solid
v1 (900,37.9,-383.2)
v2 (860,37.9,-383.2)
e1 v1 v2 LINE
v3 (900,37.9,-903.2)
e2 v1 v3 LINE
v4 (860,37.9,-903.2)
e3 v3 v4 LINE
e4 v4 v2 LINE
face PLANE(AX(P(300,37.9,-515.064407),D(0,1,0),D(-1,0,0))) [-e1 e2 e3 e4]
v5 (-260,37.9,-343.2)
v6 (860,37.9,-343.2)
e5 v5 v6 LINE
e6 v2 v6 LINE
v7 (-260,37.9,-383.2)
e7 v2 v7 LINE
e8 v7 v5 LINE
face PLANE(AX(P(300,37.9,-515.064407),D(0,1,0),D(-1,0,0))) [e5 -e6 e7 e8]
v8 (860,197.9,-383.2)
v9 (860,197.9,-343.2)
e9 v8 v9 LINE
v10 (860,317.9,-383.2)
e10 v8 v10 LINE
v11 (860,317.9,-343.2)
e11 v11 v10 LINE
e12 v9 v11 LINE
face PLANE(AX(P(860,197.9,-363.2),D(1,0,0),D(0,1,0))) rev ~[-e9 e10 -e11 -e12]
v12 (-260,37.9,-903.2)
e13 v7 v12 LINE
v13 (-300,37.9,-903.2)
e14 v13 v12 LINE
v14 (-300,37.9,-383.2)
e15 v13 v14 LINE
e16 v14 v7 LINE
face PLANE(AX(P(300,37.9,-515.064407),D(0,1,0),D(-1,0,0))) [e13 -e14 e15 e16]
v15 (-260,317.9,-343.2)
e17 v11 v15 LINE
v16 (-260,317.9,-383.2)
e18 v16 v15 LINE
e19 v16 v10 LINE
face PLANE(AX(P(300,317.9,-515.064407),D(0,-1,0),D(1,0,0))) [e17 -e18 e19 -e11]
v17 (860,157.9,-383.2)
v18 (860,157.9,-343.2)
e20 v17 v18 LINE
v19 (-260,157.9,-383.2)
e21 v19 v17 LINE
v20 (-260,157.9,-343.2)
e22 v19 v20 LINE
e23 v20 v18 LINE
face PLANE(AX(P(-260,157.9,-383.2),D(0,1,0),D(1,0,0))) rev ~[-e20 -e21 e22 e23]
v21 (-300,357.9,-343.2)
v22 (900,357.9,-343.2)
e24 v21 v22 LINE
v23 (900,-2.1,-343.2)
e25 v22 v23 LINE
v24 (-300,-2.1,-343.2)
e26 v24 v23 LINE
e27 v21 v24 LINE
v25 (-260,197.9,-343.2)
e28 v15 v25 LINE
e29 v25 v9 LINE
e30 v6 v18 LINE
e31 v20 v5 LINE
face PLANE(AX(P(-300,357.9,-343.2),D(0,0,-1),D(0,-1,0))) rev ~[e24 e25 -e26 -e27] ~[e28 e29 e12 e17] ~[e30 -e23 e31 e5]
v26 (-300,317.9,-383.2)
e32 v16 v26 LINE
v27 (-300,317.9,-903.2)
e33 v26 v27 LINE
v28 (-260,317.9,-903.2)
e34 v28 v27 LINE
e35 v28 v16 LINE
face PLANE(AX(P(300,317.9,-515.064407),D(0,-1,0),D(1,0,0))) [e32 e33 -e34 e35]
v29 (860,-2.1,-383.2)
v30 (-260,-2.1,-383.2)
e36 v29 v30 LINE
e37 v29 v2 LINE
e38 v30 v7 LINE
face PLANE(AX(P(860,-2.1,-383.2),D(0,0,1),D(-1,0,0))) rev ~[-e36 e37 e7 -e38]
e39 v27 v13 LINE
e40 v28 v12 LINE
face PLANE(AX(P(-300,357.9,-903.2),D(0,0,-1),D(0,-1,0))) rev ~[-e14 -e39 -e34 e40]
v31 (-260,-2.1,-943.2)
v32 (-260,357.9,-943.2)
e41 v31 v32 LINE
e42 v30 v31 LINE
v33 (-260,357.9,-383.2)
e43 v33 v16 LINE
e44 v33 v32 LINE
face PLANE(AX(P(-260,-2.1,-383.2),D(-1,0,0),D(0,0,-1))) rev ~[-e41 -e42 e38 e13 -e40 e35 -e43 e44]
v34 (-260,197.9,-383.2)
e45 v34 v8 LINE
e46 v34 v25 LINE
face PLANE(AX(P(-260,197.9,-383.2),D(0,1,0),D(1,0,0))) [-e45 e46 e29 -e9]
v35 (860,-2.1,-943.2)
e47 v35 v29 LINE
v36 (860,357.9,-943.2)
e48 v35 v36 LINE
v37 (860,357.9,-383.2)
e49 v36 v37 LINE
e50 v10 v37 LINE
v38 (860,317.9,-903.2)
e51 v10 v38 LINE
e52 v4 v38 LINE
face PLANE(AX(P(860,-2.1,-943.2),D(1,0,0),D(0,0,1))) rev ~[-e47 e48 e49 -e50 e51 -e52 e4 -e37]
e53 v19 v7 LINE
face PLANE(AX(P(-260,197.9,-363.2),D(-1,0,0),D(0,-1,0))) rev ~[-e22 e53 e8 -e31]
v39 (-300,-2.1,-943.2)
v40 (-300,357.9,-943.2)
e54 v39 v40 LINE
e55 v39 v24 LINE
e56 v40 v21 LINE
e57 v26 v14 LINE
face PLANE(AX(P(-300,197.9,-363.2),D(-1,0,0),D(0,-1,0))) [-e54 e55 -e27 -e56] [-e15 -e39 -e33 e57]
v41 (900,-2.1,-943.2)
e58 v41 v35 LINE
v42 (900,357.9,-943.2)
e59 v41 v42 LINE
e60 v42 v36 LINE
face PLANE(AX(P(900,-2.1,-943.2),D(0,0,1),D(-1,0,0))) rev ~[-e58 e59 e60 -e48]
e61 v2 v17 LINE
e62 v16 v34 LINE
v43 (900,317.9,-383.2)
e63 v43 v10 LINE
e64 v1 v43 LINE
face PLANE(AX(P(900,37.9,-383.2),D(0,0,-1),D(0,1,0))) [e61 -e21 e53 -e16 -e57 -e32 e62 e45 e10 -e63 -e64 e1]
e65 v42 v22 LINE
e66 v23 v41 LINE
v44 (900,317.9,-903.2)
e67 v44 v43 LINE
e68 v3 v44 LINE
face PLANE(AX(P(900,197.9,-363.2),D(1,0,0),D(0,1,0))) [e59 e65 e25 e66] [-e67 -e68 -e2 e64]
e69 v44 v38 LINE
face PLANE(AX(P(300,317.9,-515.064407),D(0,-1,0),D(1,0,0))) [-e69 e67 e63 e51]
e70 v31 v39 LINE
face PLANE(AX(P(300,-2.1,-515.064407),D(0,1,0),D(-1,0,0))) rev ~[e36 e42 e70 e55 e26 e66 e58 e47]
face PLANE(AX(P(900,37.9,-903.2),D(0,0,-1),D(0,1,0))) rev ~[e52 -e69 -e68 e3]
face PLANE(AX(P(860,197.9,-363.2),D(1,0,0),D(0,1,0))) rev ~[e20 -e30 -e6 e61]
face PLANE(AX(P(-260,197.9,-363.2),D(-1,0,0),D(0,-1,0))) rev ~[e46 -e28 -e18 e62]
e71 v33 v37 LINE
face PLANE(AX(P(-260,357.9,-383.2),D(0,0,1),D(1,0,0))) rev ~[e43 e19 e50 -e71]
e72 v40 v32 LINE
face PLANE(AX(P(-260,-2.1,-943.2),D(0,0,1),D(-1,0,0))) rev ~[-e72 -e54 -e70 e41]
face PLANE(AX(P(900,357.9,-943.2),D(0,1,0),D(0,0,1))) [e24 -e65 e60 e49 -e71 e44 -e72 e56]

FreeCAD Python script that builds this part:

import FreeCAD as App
import Part
import Sketcher
from FreeCAD import Vector

doc = App.newDocument("Part")
params = doc.addObject("Spreadsheet::Sheet", "Params")
for row, (alias, value) in enumerate([
    ("sketch1_width", "1200 mm"),
    ("sketch1_width2", "40 mm"),
    ("sketch1_height", "600 mm"),
    ("sketch1_height2", "560 mm"),
    ("pad1_length", "40 mm"),
    ("sketch2_width", "320 mm"),
    ("sketch2_height", "40 mm"),
    ("pad2_length", "40 mm"),
    ("sketch3_width", "320 mm"),
    ("sketch3_height", "40 mm"),
    ("pad3_length", "40 mm"),
    ("sketch4_width", "40 mm"),
    ("sketch4_width2", "1120 mm"),
    ("sketch4_height", "600 mm"),
    ("sketch4_height2", "560 mm"),
    ("pad4_length", "40 mm"),
    ("sketch5_width", "1120 mm"),
    ("sketch5_height", "40 mm"),
    ("pad5_length", "40 mm"),
], start=1):
    params.set(f"A{row}", alias)
    params.set(f"B{row}", "=" + value)
    params.setAlias(f"B{row}", alias)

body = doc.addObject("PartDesign::Body", "Body")

sketch1 = body.newObject("Sketcher::SketchObject", "Sketch")
sketch1.AttachmentSupport = (doc.getObject("XZ_Plane"), [""])
sketch1.MapMode = "FlatFace"
sketch1.AttachmentOffset = App.Placement(Vector(0, 0, 2.1), App.Rotation())
sketch1.addGeometry(Part.LineSegment(Vector(900, -343.2, 0), Vector(-300, -343.2, 0)), False)
sketch1.addGeometry(Part.LineSegment(Vector(-300, -343.2, 0), Vector(-300, -943.2, 0)), False)
sketch1.addGeometry(Part.LineSegment(Vector(-300, -943.2, 0), Vector(-260, -943.2, 0)), False)
sketch1.addGeometry(Part.LineSegment(Vector(-260, -943.2, 0), Vector(-260, -383.2, 0)), False)
sketch1.addGeometry(Part.LineSegment(Vector(-260, -383.2, 0), Vector(860, -383.2, 0)), False)
sketch1.addGeometry(Part.LineSegment(Vector(860, -383.2, 0), Vector(860, -943.2, 0)), False)
sketch1.addGeometry(Part.LineSegment(Vector(860, -943.2, 0), Vector(900, -943.2, 0)), False)
sketch1.addGeometry(Part.LineSegment(Vector(900, -943.2, 0), Vector(900, -343.2, 0)), False)
sketch1.addConstraint(Sketcher.Constraint("Coincident", 0, 2, 1, 1))
sketch1.addConstraint(Sketcher.Constraint("Coincident", 1, 2, 2, 1))
sketch1.addConstraint(Sketcher.Constraint("Coincident", 2, 2, 3, 1))
sketch1.addConstraint(Sketcher.Constraint("Coincident", 3, 2, 4, 1))
sketch1.addConstraint(Sketcher.Constraint("Coincident", 4, 2, 5, 1))
sketch1.addConstraint(Sketcher.Constraint("Coincident", 5, 2, 6, 1))
sketch1.addConstraint(Sketcher.Constraint("Coincident", 6, 2, 7, 1))
sketch1.addConstraint(Sketcher.Constraint("Coincident", 7, 2, 0, 1))
sketch1.addConstraint(Sketcher.Constraint("Horizontal", 0))
sketch1.addConstraint(Sketcher.Constraint("Vertical", 1))
sketch1.addConstraint(Sketcher.Constraint("Horizontal", 2))
sketch1.addConstraint(Sketcher.Constraint("Vertical", 3))
sketch1.addConstraint(Sketcher.Constraint("Horizontal", 4))
sketch1.addConstraint(Sketcher.Constraint("Vertical", 5))
sketch1.addConstraint(Sketcher.Constraint("Horizontal", 6))
sketch1.addConstraint(Sketcher.Constraint("Vertical", 7))
sketch1.addConstraint(Sketcher.Constraint("Horizontal", 2, 2, 5, 2))
sketch1.addConstraint(Sketcher.Constraint("Equal", 2, 6))
sketch1.addConstraint(Sketcher.Constraint("DistanceX", 0, 2, 0, 1, 1200.0))
sketch1.addConstraint(Sketcher.Constraint("DistanceX", 2, 1, 2, 2, 40.0))
sketch1.addConstraint(Sketcher.Constraint("DistanceY", 1, 2, 1, 1, 600.0))
sketch1.addConstraint(Sketcher.Constraint("DistanceY", 3, 1, 3, 2, 560.0))
sketch1.addConstraint(Sketcher.Constraint("DistanceX", 0, 2, -1, 1, 300.0))
sketch1.addConstraint(Sketcher.Constraint("DistanceY", 0, 2, -1, 1, 343.2))
sketch1.setExpression("Constraints[18]", "Params.sketch1_width")
sketch1.setExpression("Constraints[19]", "Params.sketch1_width2")
sketch1.setExpression("Constraints[20]", "Params.sketch1_height")
sketch1.setExpression("Constraints[21]", "Params.sketch1_height2")
pad1 = body.newObject("PartDesign::Pad", "Pad")
pad1.Profile = sketch1
pad1.setExpression("Length", "Params.pad1_length")
pad1.Reversed = True

sketch2 = body.newObject("Sketcher::SketchObject", "Sketch001")
sketch2.AttachmentSupport = (doc.getObject("YZ_Plane"), [""])
sketch2.MapMode = "FlatFace"
sketch2.AttachmentOffset = App.Placement(Vector(0, 0, 900), App.Rotation())
sketch2.addGeometry(Part.LineSegment(Vector(37.9, -343.2, 0), Vector(37.9, -383.2, 0)), False)
sketch2.addGeometry(Part.LineSegment(Vector(37.9, -383.2, 0), Vector(357.9, -383.2, 0)), False)
sketch2.addGeometry(Part.LineSegment(Vector(357.9, -383.2, 0), Vector(357.9, -343.2, 0)), False)
sketch2.addGeometry(Part.LineSegment(Vector(357.9, -343.2, 0), Vector(37.9, -343.2, 0)), False)
sketch2.addGeometry(Part.LineSegment(Vector(37.9, -903.2, 0), Vector(37.9, -943.2, 0)), False)
sketch2.addGeometry(Part.LineSegment(Vector(37.9, -943.2, 0), Vector(357.9, -943.2, 0)), False)
sketch2.addGeometry(Part.LineSegment(Vector(357.9, -943.2, 0), Vector(357.9, -903.2, 0)), False)
sketch2.addGeometry(Part.LineSegment(Vector(357.9, -903.2, 0), Vector(37.9, -903.2, 0)), False)
sketch2.addConstraint(Sketcher.Constraint("Coincident", 0, 2, 1, 1))
sketch2.addConstraint(Sketcher.Constraint("Coincident", 1, 2, 2, 1))
sketch2.addConstraint(Sketcher.Constraint("Coincident", 2, 2, 3, 1))
sketch2.addConstraint(Sketcher.Constraint("Coincident", 3, 2, 0, 1))
sketch2.addConstraint(Sketcher.Constraint("Coincident", 4, 2, 5, 1))
sketch2.addConstraint(Sketcher.Constraint("Coincident", 5, 2, 6, 1))
sketch2.addConstraint(Sketcher.Constraint("Coincident", 6, 2, 7, 1))
sketch2.addConstraint(Sketcher.Constraint("Coincident", 7, 2, 4, 1))
sketch2.addConstraint(Sketcher.Constraint("Vertical", 0))
sketch2.addConstraint(Sketcher.Constraint("Horizontal", 1))
sketch2.addConstraint(Sketcher.Constraint("Vertical", 2))
sketch2.addConstraint(Sketcher.Constraint("Horizontal", 3))
sketch2.addConstraint(Sketcher.Constraint("Vertical", 4))
sketch2.addConstraint(Sketcher.Constraint("Horizontal", 5))
sketch2.addConstraint(Sketcher.Constraint("Vertical", 6))
sketch2.addConstraint(Sketcher.Constraint("Horizontal", 7))
sketch2.addConstraint(Sketcher.Constraint("Vertical", 3, 2, 4, 2))
sketch2.addConstraint(Sketcher.Constraint("Vertical", 2, 2, 5, 2))
sketch2.addConstraint(Sketcher.Constraint("Equal", 2, 4))
sketch2.addConstraint(Sketcher.Constraint("DistanceX", 1, 1, 1, 2, 320.0))
sketch2.addConstraint(Sketcher.Constraint("DistanceY", 0, 2, 0, 1, 40.0))
sketch2.addConstraint(Sketcher.Constraint("DistanceY", 4, 2, 0, 2, 560.0))
sketch2.addConstraint(Sketcher.Constraint("DistanceX", -1, 1, 0, 2, 37.9))
sketch2.addConstraint(Sketcher.Constraint("DistanceY", 0, 2, -1, 1, 383.2))
sketch2.setExpression("Constraints[19]", "Params.sketch2_width")
sketch2.setExpression("Constraints[20]", "Params.sketch2_height")
pad2 = body.newObject("PartDesign::Pad", "Pad001")
pad2.Profile = sketch2
pad2.setExpression("Length", "Params.pad2_length")
pad2.Reversed = True

sketch3 = body.newObject("Sketcher::SketchObject", "Sketch002")
sketch3.AttachmentSupport = (doc.getObject("YZ_Plane"), [""])
sketch3.MapMode = "FlatFace"
sketch3.AttachmentOffset = App.Placement(Vector(0, 0, -300), App.Rotation())
sketch3.addGeometry(Part.LineSegment(Vector(357.9, -343.2, 0), Vector(357.9, -383.2, 0)), False)
sketch3.addGeometry(Part.LineSegment(Vector(357.9, -383.2, 0), Vector(37.9, -383.2, 0)), False)
sketch3.addGeometry(Part.LineSegment(Vector(37.9, -383.2, 0), Vector(37.9, -343.2, 0)), False)
sketch3.addGeometry(Part.LineSegment(Vector(37.9, -343.2, 0), Vector(357.9, -343.2, 0)), False)
sketch3.addGeometry(Part.LineSegment(Vector(357.9, -903.2, 0), Vector(357.9, -943.2, 0)), False)
sketch3.addGeometry(Part.LineSegment(Vector(357.9, -943.2, 0), Vector(37.9, -943.2, 0)), False)
sketch3.addGeometry(Part.LineSegment(Vector(37.9, -943.2, 0), Vector(37.9, -903.2, 0)), False)
sketch3.addGeometry(Part.LineSegment(Vector(37.9, -903.2, 0), Vector(357.9, -903.2, 0)), False)
sketch3.addConstraint(Sketcher.Constraint("Coincident", 0, 2, 1, 1))
sketch3.addConstraint(Sketcher.Constraint("Coincident", 1, 2, 2, 1))
sketch3.addConstraint(Sketcher.Constraint("Coincident", 2, 2, 3, 1))
sketch3.addConstraint(Sketcher.Constraint("Coincident", 3, 2, 0, 1))
sketch3.addConstraint(Sketcher.Constraint("Coincident", 4, 2, 5, 1))
sketch3.addConstraint(Sketcher.Constraint("Coincident", 5, 2, 6, 1))
sketch3.addConstraint(Sketcher.Constraint("Coincident", 6, 2, 7, 1))
sketch3.addConstraint(Sketcher.Constraint("Coincident", 7, 2, 4, 1))
sketch3.addConstraint(Sketcher.Constraint("Vertical", 0))
sketch3.addConstraint(Sketcher.Constraint("Horizontal", 1))
sketch3.addConstraint(Sketcher.Constraint("Vertical", 2))
sketch3.addConstraint(Sketcher.Constraint("Horizontal", 3))
sketch3.addConstraint(Sketcher.Constraint("Vertical", 4))
sketch3.addConstraint(Sketcher.Constraint("Horizontal", 5))
sketch3.addConstraint(Sketcher.Constraint("Vertical", 6))
sketch3.addConstraint(Sketcher.Constraint("Horizontal", 7))
sketch3.addConstraint(Sketcher.Constraint("Vertical", 3, 2, 4, 2))
sketch3.addConstraint(Sketcher.Constraint("Vertical", 2, 2, 5, 2))
sketch3.addConstraint(Sketcher.Constraint("Equal", 2, 4))
sketch3.addConstraint(Sketcher.Constraint("DistanceX", 1, 2, 1, 1, 320.0))
sketch3.addConstraint(Sketcher.Constraint("DistanceY", 0, 2, 0, 1, 40.0))
sketch3.addConstraint(Sketcher.Constraint("DistanceY", 4, 2, 0, 2, 560.0))
sketch3.addConstraint(Sketcher.Constraint("DistanceX", -1, 1, 0, 2, 357.9))
sketch3.addConstraint(Sketcher.Constraint("DistanceY", 0, 2, -1, 1, 383.2))
sketch3.setExpression("Constraints[19]", "Params.sketch3_width")
sketch3.setExpression("Constraints[20]", "Params.sketch3_height")
pad3 = body.newObject("PartDesign::Pad", "Pad002")
pad3.Profile = sketch3
pad3.setExpression("Length", "Params.pad3_length")

sketch4 = body.newObject("Sketcher::SketchObject", "Sketch003")
sketch4.AttachmentSupport = (doc.getObject("XZ_Plane"), [""])
sketch4.MapMode = "FlatFace"
sketch4.AttachmentOffset = App.Placement(Vector(0, 0, -357.9), App.Rotation())
sketch4.addGeometry(Part.LineSegment(Vector(900, -343.2, 0), Vector(900, -943.2, 0)), False)
sketch4.addGeometry(Part.LineSegment(Vector(900, -943.2, 0), Vector(860, -943.2, 0)), False)
sketch4.addGeometry(Part.LineSegment(Vector(860, -943.2, 0), Vector(860, -383.2, 0)), False)
sketch4.addGeometry(Part.LineSegment(Vector(860, -383.2, 0), Vector(-260, -383.2, 0)), False)
sketch4.addGeometry(Part.LineSegment(Vector(-260, -383.2, 0), Vector(-260, -943.2, 0)), False)
sketch4.addGeometry(Part.LineSegment(Vector(-260, -943.2, 0), Vector(-300, -943.2, 0)), False)
sketch4.addGeometry(Part.LineSegment(Vector(-300, -943.2, 0), Vector(-300, -343.2, 0)), False)
sketch4.addGeometry(Part.LineSegment(Vector(-300, -343.2, 0), Vector(900, -343.2, 0)), False)
sketch4.addConstraint(Sketcher.Constraint("Coincident", 0, 2, 1, 1))
sketch4.addConstraint(Sketcher.Constraint("Coincident", 1, 2, 2, 1))
sketch4.addConstraint(Sketcher.Constraint("Coincident", 2, 2, 3, 1))
sketch4.addConstraint(Sketcher.Constraint("Coincident", 3, 2, 4, 1))
sketch4.addConstraint(Sketcher.Constraint("Coincident", 4, 2, 5, 1))
sketch4.addConstraint(Sketcher.Constraint("Coincident", 5, 2, 6, 1))
sketch4.addConstraint(Sketcher.Constraint("Coincident", 6, 2, 7, 1))
sketch4.addConstraint(Sketcher.Constraint("Coincident", 7, 2, 0, 1))
sketch4.addConstraint(Sketcher.Constraint("Vertical", 0))
sketch4.addConstraint(Sketcher.Constraint("Horizontal", 1))
sketch4.addConstraint(Sketcher.Constraint("Vertical", 2))
sketch4.addConstraint(Sketcher.Constraint("Horizontal", 3))
sketch4.addConstraint(Sketcher.Constraint("Vertical", 4))
sketch4.addConstraint(Sketcher.Constraint("Horizontal", 5))
sketch4.addConstraint(Sketcher.Constraint("Vertical", 6))
sketch4.addConstraint(Sketcher.Constraint("Horizontal", 7))
sketch4.addConstraint(Sketcher.Constraint("Horizontal", 1, 2, 4, 2))
sketch4.addConstraint(Sketcher.Constraint("Equal", 1, 5))
sketch4.addConstraint(Sketcher.Constraint("DistanceX", 1, 2, 1, 1, 40.0))
sketch4.addConstraint(Sketcher.Constraint("DistanceX", 3, 2, 3, 1, 1120.0))
sketch4.addConstraint(Sketcher.Constraint("DistanceY", 0, 2, 0, 1, 600.0))
sketch4.addConstraint(Sketcher.Constraint("DistanceY", 2, 1, 2, 2, 560.0))
sketch4.addConstraint(Sketcher.Constraint("DistanceX", -1, 1, 0, 2, 900.0))
sketch4.addConstraint(Sketcher.Constraint("DistanceY", 0, 2, -1, 1, 943.2))
sketch4.setExpression("Constraints[18]", "Params.sketch4_width")
sketch4.setExpression("Constraints[19]", "Params.sketch4_width2")
sketch4.setExpression("Constraints[20]", "Params.sketch4_height")
sketch4.setExpression("Constraints[21]", "Params.sketch4_height2")
pad4 = body.newObject("PartDesign::Pad", "Pad003")
pad4.Profile = sketch4
pad4.setExpression("Length", "Params.pad4_length")

sketch5 = body.newObject("Sketcher::SketchObject", "Sketch004")
sketch5.AttachmentSupport = (doc.getObject("XY_Plane"), [""])
sketch5.MapMode = "FlatFace"
sketch5.AttachmentOffset = App.Placement(Vector(0, 0, -383.2), App.Rotation())
sketch5.addGeometry(Part.LineSegment(Vector(-260, 157.9, 0), Vector(-260, 197.9, 0)), False)
sketch5.addGeometry(Part.LineSegment(Vector(-260, 197.9, 0), Vector(860, 197.9, 0)), False)
sketch5.addGeometry(Part.LineSegment(Vector(860, 197.9, 0), Vector(860, 157.9, 0)), False)
sketch5.addGeometry(Part.LineSegment(Vector(860, 157.9, 0), Vector(-260, 157.9, 0)), False)
sketch5.addConstraint(Sketcher.Constraint("Coincident", 0, 2, 1, 1))
sketch5.addConstraint(Sketcher.Constraint("Coincident", 1, 2, 2, 1))
sketch5.addConstraint(Sketcher.Constraint("Coincident", 2, 2, 3, 1))
sketch5.addConstraint(Sketcher.Constraint("Coincident", 3, 2, 0, 1))
sketch5.addConstraint(Sketcher.Constraint("Vertical", 0))
sketch5.addConstraint(Sketcher.Constraint("Horizontal", 1))
sketch5.addConstraint(Sketcher.Constraint("Vertical", 2))
sketch5.addConstraint(Sketcher.Constraint("Horizontal", 3))
sketch5.addConstraint(Sketcher.Constraint("DistanceX", 1, 1, 1, 2, 1120.0))
sketch5.addConstraint(Sketcher.Constraint("DistanceY", 0, 1, 0, 2, 40.0))
sketch5.addConstraint(Sketcher.Constraint("DistanceX", 0, 2, -1, 1, 260.0))
sketch5.addConstraint(Sketcher.Constraint("DistanceY", -1, 1, 0, 2, 197.9))
sketch5.setExpression("Constraints[8]", "Params.sketch5_width")
sketch5.setExpression("Constraints[9]", "Params.sketch5_height")
pad5 = body.newObject("PartDesign::Pad", "Pad004")
pad5.Profile = sketch5
pad5.setExpression("Length", "Params.pad5_length")

doc.recompute()
